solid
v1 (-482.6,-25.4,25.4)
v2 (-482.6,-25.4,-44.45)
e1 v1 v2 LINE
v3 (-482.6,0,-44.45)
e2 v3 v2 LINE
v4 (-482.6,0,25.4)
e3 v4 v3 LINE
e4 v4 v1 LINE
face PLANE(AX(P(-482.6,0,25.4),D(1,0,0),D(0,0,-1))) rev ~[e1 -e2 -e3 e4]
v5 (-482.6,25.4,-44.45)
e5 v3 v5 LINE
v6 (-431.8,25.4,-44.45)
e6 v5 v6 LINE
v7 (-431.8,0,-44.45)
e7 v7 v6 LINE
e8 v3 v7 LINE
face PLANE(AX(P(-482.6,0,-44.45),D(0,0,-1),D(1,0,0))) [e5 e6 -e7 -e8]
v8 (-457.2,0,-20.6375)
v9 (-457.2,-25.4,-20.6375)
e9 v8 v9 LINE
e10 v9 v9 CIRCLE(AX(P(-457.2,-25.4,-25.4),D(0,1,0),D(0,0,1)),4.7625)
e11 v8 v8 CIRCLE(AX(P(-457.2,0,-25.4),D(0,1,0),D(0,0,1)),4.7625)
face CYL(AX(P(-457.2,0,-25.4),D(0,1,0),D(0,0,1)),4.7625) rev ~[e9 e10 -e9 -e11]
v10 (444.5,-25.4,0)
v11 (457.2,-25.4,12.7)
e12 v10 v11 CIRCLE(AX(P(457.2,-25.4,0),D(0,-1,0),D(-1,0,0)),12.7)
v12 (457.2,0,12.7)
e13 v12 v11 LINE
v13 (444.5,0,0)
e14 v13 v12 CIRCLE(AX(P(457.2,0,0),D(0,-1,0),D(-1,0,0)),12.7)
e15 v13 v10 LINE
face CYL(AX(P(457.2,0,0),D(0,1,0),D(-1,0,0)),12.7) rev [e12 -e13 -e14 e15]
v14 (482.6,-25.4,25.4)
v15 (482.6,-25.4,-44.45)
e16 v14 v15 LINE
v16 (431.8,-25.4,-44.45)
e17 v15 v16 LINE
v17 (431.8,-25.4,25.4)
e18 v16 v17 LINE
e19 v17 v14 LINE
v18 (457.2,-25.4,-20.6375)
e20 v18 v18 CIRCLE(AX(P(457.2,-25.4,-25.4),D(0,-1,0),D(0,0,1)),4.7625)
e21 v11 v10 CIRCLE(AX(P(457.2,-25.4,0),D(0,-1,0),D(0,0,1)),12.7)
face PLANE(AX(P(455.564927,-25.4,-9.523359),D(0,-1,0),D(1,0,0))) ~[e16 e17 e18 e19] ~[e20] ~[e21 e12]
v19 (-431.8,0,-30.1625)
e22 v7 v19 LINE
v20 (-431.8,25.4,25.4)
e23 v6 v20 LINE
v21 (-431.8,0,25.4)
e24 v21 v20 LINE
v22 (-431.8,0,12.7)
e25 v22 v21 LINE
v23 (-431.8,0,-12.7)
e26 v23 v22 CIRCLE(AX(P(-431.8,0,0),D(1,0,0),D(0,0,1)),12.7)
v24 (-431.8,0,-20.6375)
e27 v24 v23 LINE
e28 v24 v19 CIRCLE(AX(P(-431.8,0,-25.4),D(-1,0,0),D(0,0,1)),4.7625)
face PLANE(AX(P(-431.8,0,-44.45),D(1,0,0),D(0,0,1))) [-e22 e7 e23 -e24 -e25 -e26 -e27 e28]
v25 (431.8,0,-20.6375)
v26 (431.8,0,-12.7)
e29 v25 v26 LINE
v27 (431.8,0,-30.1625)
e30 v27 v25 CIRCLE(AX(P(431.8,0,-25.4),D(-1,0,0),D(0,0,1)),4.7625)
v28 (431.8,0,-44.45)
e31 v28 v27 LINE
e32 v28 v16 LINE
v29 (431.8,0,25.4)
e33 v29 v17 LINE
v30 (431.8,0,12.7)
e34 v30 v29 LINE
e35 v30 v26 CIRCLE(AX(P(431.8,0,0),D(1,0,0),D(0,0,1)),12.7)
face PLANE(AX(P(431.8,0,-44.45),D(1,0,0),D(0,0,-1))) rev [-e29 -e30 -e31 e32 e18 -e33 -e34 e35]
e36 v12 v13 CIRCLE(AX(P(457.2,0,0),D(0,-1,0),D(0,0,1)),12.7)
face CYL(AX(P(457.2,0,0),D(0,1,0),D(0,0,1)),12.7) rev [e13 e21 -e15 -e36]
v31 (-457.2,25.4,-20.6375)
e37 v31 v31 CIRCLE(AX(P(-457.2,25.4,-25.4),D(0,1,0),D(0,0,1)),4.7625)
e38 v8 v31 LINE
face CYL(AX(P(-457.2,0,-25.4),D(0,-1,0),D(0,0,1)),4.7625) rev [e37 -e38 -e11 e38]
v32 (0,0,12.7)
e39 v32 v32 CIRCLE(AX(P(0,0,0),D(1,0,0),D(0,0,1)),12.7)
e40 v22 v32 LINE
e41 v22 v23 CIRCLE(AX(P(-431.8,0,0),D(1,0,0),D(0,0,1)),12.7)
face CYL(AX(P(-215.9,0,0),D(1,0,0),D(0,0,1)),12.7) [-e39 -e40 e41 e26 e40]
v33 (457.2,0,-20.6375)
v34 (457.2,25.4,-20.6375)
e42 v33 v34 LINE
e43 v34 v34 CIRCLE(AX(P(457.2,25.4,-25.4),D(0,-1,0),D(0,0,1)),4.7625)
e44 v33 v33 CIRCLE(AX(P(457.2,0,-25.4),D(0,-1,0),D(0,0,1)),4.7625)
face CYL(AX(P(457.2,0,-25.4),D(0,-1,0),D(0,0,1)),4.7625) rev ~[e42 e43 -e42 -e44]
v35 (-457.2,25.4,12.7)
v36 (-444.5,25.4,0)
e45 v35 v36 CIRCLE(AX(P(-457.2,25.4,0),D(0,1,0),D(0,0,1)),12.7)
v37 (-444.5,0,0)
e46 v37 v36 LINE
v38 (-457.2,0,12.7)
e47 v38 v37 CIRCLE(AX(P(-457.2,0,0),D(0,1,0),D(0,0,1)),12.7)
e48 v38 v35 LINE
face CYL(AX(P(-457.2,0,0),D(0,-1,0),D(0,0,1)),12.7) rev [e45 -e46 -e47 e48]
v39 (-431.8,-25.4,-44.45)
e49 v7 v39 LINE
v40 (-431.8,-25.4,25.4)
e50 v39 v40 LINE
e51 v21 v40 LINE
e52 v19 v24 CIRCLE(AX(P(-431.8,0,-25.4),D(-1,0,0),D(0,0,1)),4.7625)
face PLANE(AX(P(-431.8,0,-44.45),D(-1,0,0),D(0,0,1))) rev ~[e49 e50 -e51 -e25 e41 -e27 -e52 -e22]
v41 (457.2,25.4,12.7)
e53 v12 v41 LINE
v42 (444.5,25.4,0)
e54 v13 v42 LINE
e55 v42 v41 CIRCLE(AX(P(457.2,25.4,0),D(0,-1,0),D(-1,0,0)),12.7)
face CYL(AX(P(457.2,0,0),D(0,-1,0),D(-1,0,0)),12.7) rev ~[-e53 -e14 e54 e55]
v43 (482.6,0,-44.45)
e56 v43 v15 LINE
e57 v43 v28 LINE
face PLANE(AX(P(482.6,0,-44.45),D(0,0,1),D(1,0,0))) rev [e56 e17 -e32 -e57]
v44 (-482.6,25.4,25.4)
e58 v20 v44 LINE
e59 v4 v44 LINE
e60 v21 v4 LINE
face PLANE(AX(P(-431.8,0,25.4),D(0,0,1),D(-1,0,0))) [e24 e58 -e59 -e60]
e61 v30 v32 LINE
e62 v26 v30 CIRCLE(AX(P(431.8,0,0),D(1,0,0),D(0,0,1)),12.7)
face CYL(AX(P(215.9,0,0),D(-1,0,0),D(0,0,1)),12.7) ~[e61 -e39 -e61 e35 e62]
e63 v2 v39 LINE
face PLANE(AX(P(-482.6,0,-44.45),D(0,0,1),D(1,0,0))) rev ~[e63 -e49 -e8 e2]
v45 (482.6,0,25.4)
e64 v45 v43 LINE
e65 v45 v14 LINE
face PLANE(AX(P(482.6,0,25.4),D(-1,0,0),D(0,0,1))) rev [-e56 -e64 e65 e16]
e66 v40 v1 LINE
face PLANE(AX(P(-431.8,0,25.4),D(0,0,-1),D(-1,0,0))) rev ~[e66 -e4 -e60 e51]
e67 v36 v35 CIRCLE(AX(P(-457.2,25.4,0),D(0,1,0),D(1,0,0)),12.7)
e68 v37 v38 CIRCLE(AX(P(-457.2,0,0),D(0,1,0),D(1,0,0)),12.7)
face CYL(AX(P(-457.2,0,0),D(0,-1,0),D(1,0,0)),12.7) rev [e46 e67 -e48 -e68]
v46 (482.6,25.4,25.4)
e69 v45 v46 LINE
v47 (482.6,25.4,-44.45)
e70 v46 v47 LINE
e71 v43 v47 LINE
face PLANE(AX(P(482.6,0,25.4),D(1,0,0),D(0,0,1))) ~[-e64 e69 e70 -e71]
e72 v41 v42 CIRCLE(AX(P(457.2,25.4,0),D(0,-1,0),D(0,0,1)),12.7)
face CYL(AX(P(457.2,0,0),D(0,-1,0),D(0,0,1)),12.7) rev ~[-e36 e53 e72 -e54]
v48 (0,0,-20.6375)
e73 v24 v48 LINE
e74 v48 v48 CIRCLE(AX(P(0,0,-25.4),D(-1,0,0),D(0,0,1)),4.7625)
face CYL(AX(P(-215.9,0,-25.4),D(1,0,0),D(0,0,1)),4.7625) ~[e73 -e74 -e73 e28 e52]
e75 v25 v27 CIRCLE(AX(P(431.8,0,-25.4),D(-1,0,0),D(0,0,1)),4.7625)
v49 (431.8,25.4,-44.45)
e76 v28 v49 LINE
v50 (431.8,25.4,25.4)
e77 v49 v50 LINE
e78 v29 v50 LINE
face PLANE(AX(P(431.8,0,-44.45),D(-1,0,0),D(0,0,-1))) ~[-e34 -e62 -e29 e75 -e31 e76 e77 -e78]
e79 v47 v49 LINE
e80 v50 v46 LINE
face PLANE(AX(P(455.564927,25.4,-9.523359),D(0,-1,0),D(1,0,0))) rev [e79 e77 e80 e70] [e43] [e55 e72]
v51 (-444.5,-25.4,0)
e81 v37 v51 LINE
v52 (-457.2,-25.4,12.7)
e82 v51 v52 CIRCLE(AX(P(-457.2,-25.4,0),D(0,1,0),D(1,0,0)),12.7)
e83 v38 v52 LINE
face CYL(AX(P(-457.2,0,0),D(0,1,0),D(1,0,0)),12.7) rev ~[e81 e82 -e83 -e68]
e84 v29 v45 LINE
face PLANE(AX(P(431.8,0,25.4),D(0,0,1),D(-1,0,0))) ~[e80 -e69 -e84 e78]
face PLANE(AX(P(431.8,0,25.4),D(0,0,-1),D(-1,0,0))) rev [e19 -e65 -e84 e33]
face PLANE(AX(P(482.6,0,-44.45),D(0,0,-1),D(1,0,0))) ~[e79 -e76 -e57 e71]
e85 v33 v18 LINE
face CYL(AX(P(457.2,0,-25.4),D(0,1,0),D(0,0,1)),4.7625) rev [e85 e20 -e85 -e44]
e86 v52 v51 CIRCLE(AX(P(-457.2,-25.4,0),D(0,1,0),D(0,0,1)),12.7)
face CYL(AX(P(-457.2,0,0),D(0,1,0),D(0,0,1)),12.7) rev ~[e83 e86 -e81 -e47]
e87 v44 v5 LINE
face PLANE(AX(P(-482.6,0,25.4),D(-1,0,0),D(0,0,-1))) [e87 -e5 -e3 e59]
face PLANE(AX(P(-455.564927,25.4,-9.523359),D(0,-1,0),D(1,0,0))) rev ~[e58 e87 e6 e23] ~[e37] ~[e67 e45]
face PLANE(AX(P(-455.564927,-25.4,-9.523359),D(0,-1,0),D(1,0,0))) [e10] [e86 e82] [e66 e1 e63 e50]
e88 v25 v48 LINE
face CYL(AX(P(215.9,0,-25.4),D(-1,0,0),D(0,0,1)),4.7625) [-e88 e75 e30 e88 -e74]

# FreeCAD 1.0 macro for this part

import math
import FreeCAD as App
import Part
import Sketcher
Q = App.Units.Quantity


def add_polygon(sketch, points):
    """Adds a closed chain of lines whose ends are joined by coincident constraints."""
    first, n = sketch.GeometryCount, len(points)
    for a, b in zip(points, points[1:] + points[:1]):
        sketch.addGeometry(Part.LineSegment(App.Vector(*a, 0), App.Vector(*b, 0)), False)
    for i in range(n):
        sketch.addConstraint(Sketcher.Constraint("Coincident", first + i, 2, first + (i + 1) % n, 1))

doc = App.newDocument("Part")
body = doc.addObject("PartDesign::Body", "Body")

# Sketch on XZ plane
sketch1 = body.newObject("Sketcher::SketchObject", "Sketch")
sketch1.AttachmentSupport = (doc.getObject("XZ_Plane"), [""])
sketch1.MapMode = "FlatFace"
add_polygon(sketch1, [(-431.8, 12.7), (-431.8, 0), (0, 0), (0, 12.7)])  # lines 0-3
sketch1.addConstraint([
    Sketcher.Constraint("Vertical", 0),
    Sketcher.Constraint("Horizontal", 1),
    Sketcher.Constraint("Vertical", 2),
    Sketcher.Constraint("Horizontal", 3),
    Sketcher.Constraint("Coincident", 1, 2, -1, 1),
    Sketcher.Constraint("DistanceX", 1, 1, 1, 2, Q("17 in")),
    Sketcher.Constraint("DistanceY", 0, 2, 0, 1, Q("0.5 in")),
])
revolution = body.newObject("PartDesign::Revolution", "Revolution")
revolution.Profile = sketch1
revolution.ReferenceAxis = (sketch1, ["H_Axis"])
revolution.Angle = 360
body2 = doc.addObject("PartDesign::Body", "Body001")

# Sketch on XZ plane
sketch2 = body2.newObject("Sketcher::SketchObject", "Sketch001")
sketch2.AttachmentSupport = (doc.getObject("XZ_Plane001"), [""])
sketch2.MapMode = "FlatFace"
add_polygon(sketch2, [(-431.8, -20.6375), (-431.8, -25.4), (0, -25.4), (0, -20.6375)])  # lines 0-3
sketch2.addGeometry(Part.LineSegment(App.Vector(0, -25.4, 0), App.Vector(-431.8, -25.4, 0)), True)  # axis
sketch2.addConstraint([
    Sketcher.Constraint("Vertical", 0),
    Sketcher.Constraint("Horizontal", 1),
    Sketcher.Constraint("Vertical", 2),
    Sketcher.Constraint("Horizontal", 3),
    Sketcher.Constraint("Horizontal", 4),
    Sketcher.Constraint("Coincident", 4, 1, 1, 2),
    Sketcher.Constraint("PointOnObject", 1, 2, -2),
    Sketcher.Constraint("Vertical", 3, 2, 4, 2),
    Sketcher.Constraint("DistanceX", 1, 1, 1, 2, Q("17 in")),
    Sketcher.Constraint("DistanceY", 0, 2, -1, 1, Q("1 in")),
    Sketcher.Constraint("DistanceY", 0, 2, 0, 1, Q("0.1875 in")),
])
revolution2 = body2.newObject("PartDesign::Revolution", "Revolution001")
revolution2.Profile = sketch2
revolution2.ReferenceAxis = (sketch2, ["Axis0"])
revolution2.Angle = 360
body.AllowCompound = True
doc.recompute()

boolean = body.newObject("PartDesign::Boolean", "Boolean")
boolean.Type = "Fuse"
boolean.addObjects([body2])

# Sketch on XZ plane
sketch3 = body.newObject("Sketcher::SketchObject", "Sketch002")
sketch3.AttachmentSupport = (doc.getObject("XZ_Plane"), [""])
sketch3.MapMode = "FlatFace"
add_polygon(sketch3, [(-431.8, 25.4), (-482.6, 25.4), (-482.6, -44.45), (-431.8, -44.45)])  # lines 0-3
sketch3.addGeometry(Part.ArcOfCircle(Part.Circle(App.Vector(-457.2, 0, 0), App.Vector(0, 0, 1), 12.7), math.radians(90), math.radians(360)), False)  # 4
sketch3.addGeometry(Part.ArcOfCircle(Part.Circle(App.Vector(-457.2, 0, 0), App.Vector(0, 0, 1), 12.7), math.radians(0), math.radians(90)), False)  # 5
sketch3.addGeometry(Part.Circle(App.Vector(-457.2, -25.4, 0), App.Vector(0, 0, 1), 4.7625), False)  # 6
sketch3.addConstraint([
    Sketcher.Constraint("Tangent", 4, 1, 5, 2),
    Sketcher.Constraint("Coincident", 5, 1, 4, 2),
    Sketcher.Constraint("Horizontal", 0),
    Sketcher.Constraint("Vertical", 1),
    Sketcher.Constraint("Horizontal", 2),
    Sketcher.Constraint("Vertical", 3),
    Sketcher.Constraint("PointOnObject", 4, 3, -1),
    Sketcher.Constraint("PointOnObject", 5, 1, -1),
    Sketcher.Constraint("Vertical", 5, 3, 6, 3),
    Sketcher.Constraint("Vertical", 6, 3, 4, 1),
    Sketcher.Constraint("Radius", 4, Q("0.5 in")),
    Sketcher.Constraint("DistanceX", 0, 2, 0, 1, Q("2 in")),
    Sketcher.Constraint("Diameter", 6, Q("0.375 in")),
    Sketcher.Constraint("DistanceX", 4, 3, -1, 1, Q("18 in")),
    Sketcher.Constraint("DistanceY", 6, 3, -1, 1, Q("1 in")),
    Sketcher.Constraint("DistanceX", 0, 2, -1, 1, Q("19 in")),
    Sketcher.Constraint("DistanceY", -1, 1, 0, 2, Q("1 in")),
    Sketcher.Constraint("DistanceY", 1, 2, 1, 1, Q("2.75 in")),
])
pad1 = body.newObject("PartDesign::Pad", "Pad")
pad1.Profile = sketch3
pad1.Length = Q("2 in")
pad1.Midplane = True
body3 = doc.addObject("PartDesign::Body", "Body002")
doc.recompute()

body3.BaseFeature = body
doc.recompute()

mirroring = doc.addObject("Part::Mirroring", "Mirroring")
mirroring.Source = body
mirroring.Base = App.Vector(0, 0, 0)
mirroring.Normal = App.Vector(1, 0, 0)
body4 = doc.addObject("PartDesign::Body", "Body003")
body4.BaseFeature = mirroring
boolean2 = body3.newObject("PartDesign::Boolean", "Boolean001")
boolean2.Type = "Fuse"
boolean2.addObjects([body4])
doc.recompute()
mirroring.Visibility = False

doc.recompute()
